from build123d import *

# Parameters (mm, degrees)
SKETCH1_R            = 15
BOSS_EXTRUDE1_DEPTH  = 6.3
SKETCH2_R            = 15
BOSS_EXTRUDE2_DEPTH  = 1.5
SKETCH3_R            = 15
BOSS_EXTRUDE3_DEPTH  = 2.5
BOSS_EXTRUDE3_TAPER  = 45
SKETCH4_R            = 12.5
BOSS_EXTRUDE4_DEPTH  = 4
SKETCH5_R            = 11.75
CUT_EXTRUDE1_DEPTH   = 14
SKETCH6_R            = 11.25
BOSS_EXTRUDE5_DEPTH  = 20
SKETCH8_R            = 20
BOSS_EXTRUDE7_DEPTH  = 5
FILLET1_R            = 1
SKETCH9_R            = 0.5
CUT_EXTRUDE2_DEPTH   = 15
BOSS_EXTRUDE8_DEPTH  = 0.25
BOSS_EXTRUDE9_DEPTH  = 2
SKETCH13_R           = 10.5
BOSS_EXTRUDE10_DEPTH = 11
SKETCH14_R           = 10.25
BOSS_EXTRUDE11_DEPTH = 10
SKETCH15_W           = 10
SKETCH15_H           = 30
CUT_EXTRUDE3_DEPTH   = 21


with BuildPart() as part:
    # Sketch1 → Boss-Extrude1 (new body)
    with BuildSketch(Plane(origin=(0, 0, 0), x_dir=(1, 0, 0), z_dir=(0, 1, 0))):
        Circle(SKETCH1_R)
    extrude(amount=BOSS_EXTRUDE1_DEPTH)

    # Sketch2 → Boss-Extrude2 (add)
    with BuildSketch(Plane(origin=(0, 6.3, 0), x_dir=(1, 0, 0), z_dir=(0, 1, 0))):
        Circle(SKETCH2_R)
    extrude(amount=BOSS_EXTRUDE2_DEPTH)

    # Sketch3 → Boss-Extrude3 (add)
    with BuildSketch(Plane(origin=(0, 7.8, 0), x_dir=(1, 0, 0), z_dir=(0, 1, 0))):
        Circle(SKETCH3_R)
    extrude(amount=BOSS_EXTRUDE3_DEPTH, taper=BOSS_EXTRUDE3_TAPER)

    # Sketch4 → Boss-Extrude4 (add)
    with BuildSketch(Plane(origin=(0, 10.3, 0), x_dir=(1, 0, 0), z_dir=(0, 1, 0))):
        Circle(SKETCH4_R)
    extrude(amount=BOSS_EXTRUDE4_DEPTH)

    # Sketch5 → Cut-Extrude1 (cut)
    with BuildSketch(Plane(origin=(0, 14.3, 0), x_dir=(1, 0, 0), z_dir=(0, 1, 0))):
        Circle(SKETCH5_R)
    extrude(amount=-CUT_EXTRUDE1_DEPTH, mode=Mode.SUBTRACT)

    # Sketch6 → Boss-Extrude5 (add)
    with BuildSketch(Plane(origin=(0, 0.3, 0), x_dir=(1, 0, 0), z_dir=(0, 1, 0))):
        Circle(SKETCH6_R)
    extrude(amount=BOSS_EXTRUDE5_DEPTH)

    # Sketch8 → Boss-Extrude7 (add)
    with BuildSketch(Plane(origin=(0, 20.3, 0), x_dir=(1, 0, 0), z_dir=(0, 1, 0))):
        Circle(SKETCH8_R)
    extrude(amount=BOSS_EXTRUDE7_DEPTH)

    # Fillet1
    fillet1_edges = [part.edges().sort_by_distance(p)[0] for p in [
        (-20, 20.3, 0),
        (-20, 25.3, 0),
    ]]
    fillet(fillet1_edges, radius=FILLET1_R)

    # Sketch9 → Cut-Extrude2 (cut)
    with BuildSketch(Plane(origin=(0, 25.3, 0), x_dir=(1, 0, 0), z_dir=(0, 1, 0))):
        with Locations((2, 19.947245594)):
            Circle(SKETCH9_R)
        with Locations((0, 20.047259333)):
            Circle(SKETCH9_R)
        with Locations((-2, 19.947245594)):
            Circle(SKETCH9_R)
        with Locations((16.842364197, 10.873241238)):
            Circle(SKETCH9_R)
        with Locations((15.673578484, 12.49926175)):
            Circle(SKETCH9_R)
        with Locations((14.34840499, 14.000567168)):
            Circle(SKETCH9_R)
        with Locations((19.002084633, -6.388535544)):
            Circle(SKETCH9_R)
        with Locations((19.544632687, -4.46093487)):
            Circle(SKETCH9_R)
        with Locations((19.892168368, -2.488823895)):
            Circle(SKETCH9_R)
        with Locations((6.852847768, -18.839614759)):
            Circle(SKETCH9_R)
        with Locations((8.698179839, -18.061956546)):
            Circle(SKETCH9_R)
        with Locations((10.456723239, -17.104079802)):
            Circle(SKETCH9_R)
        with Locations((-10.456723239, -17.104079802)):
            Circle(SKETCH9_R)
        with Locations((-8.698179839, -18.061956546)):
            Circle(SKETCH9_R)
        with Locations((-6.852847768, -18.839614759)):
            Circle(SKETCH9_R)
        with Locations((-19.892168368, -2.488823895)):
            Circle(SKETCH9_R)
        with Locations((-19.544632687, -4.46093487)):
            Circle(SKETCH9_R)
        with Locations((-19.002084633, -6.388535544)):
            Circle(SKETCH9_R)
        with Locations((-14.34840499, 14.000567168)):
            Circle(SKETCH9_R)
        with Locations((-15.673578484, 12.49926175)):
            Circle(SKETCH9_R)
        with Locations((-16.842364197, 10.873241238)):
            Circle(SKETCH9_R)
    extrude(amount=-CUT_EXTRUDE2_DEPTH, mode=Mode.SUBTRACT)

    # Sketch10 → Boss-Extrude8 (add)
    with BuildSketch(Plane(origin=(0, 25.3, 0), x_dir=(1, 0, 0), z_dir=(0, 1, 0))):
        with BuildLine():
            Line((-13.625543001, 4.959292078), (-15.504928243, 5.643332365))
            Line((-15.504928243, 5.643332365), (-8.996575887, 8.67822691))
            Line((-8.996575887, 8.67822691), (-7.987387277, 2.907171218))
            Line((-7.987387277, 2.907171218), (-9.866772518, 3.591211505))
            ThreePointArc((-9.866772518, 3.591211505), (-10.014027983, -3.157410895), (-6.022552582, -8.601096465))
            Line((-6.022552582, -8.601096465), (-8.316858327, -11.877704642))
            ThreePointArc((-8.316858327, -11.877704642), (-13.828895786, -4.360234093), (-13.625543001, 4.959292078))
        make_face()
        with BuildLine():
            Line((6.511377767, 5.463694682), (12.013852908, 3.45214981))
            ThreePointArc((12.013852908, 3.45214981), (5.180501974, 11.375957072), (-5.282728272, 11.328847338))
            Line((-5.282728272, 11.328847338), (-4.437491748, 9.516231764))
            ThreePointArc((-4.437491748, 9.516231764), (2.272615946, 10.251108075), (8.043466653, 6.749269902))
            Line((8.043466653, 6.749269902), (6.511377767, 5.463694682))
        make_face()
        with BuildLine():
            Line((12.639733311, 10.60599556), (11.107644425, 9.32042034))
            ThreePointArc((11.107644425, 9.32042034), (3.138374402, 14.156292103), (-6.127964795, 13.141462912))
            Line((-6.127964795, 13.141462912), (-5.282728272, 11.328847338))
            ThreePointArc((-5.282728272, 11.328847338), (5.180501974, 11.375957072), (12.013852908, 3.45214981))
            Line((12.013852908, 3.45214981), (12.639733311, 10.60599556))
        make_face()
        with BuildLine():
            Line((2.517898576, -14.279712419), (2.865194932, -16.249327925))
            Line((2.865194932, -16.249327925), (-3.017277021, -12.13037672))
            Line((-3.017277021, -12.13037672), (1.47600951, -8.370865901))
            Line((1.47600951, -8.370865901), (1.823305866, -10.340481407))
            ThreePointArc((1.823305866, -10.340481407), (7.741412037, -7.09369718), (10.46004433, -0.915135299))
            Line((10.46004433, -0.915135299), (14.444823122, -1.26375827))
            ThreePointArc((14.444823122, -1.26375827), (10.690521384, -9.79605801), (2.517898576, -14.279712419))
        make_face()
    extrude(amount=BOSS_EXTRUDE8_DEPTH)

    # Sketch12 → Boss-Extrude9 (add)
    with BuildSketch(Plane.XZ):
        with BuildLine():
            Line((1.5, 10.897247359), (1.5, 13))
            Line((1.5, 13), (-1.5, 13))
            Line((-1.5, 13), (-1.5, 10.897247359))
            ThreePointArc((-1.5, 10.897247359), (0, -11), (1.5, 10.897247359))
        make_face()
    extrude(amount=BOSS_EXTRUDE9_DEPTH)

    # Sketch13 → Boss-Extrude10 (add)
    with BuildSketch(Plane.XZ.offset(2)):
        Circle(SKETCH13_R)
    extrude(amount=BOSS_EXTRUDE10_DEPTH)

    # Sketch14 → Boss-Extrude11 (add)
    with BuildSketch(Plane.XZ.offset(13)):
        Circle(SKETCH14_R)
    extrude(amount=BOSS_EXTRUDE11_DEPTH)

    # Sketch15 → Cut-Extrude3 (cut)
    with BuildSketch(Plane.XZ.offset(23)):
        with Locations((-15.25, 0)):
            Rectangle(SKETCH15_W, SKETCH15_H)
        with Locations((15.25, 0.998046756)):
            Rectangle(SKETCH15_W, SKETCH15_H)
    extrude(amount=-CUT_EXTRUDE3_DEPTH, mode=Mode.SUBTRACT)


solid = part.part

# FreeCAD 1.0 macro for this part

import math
import FreeCAD as App
import Part
import Sketcher

V = App.Vector
Q = App.Units.Quantity


def edges_at(feature, points):
    """Names of the edges that pass closest to the given points."""
    edges = feature.Shape.Edges
    near = lambda p: min(range(len(edges)), key=lambda i: edges[i].distToShape(Part.Vertex(*p))[0])
    return sorted({f"Edge{near(p) + 1}" for p in points})


def add_polygon(sketch, points):
    """Adds a closed chain of lines whose ends are joined by coincident constraints."""
    first, n = sketch.GeometryCount, len(points)
    for a, b in zip(points, points[1:] + points[:1]):
        sketch.addGeometry(Part.LineSegment(App.Vector(*a, 0), App.Vector(*b, 0)), False)
    for i in range(n):
        sketch.addConstraint(Sketcher.Constraint("Coincident", first + i, 2, first + (i + 1) % n, 1))

doc = App.newDocument("Part")
body = doc.addObject("PartDesign::Body", "Body")

# Sketch on XZ plane
sketch1 = doc.addObject("Sketcher::SketchObject", "Sketch")
body.addObject(sketch1)
sketch1.AttachmentSupport = (doc.XZ_Plane, [""])
sketch1.MapMode = "FlatFace"
sketch1.addGeometry(Part.Circle(V(0, 0, 0), V(0, 0, 1), 15), False)
sketch1.addConstraint([
    Sketcher.Constraint("Coincident", 0, 3, -1, 1),
    Sketcher.Constraint("Diameter", 0, Q("30 mm")),
])
pad1 = doc.addObject("PartDesign::Pad", "Pad")
body.addObject(pad1)
pad1.Profile = sketch1
pad1.Length = 6.3
pad1.Reversed = True

# Sketch on XZ plane
sketch2 = doc.addObject("Sketcher::SketchObject", "Sketch001")
body.addObject(sketch2)
sketch2.AttachmentSupport = (doc.XZ_Plane, [""])
sketch2.MapMode = "FlatFace"
sketch2.AttachmentOffset = App.Placement(V(0, 0, -6.3), App.Rotation())
sketch2.addGeometry(Part.Circle(V(0, 0, 0), V(0, 0, 1), 15), False)
sketch2.addConstraint([
    Sketcher.Constraint("Coincident", 0, 3, -1, 1),
    Sketcher.Constraint("Diameter", 0, Q("30 mm")),
])
pad2 = doc.addObject("PartDesign::Pad", "Pad001")
body.addObject(pad2)
pad2.Profile = sketch2
pad2.Length = 1.5
pad2.Reversed = True

# Sketch on XZ plane
sketch3 = doc.addObject("Sketcher::SketchObject", "Sketch002")
body.addObject(sketch3)
sketch3.AttachmentSupport = (doc.XZ_Plane, [""])
sketch3.MapMode = "FlatFace"
sketch3.AttachmentOffset = App.Placement(V(0, 0, -7.8), App.Rotation())
sketch3.addGeometry(Part.Circle(V(0, 0, 0), V(0, 0, 1), 15), False)
sketch3.addConstraint([
    Sketcher.Constraint("Coincident", 0, 3, -1, 1),
    Sketcher.Constraint("Diameter", 0, Q("30 mm")),
])
pad3 = doc.addObject("PartDesign::Pad", "Pad002")
body.addObject(pad3)
pad3.Profile = sketch3
pad3.Length = 2.5
pad3.Reversed = True
pad3.TaperAngle = -45

# Sketch on XZ plane
sketch4 = doc.addObject("Sketcher::SketchObject", "Sketch003")
body.addObject(sketch4)
sketch4.AttachmentSupport = (doc.XZ_Plane, [""])
sketch4.MapMode = "FlatFace"
sketch4.AttachmentOffset = App.Placement(V(0, 0, -10.3), App.Rotation())
sketch4.addGeometry(Part.Circle(V(0, 0, 0), V(0, 0, 1), 12), False)
sketch4.addConstraint([
    Sketcher.Constraint("Coincident", 0, 3, -1, 1),
    Sketcher.Constraint("Diameter", 0, Q("25 mm")),
])
pad4 = doc.addObject("PartDesign::Pad", "Pad003")
body.addObject(pad4)
pad4.Profile = sketch4
pad4.Length = 4
pad4.Reversed = True

# Sketch on XZ plane
sketch5 = doc.addObject("Sketcher::SketchObject", "Sketch004")
body.addObject(sketch5)
sketch5.AttachmentSupport = (doc.XZ_Plane, [""])
sketch5.MapMode = "FlatFace"
sketch5.AttachmentOffset = App.Placement(V(0, 0, -14.3), App.Rotation())
sketch5.addGeometry(Part.Circle(V(0, 0, 0), V(0, 0, 1), 12), False)
sketch5.addConstraint([
    Sketcher.Constraint("Coincident", 0, 3, -1, 1),
    Sketcher.Constraint("Diameter", 0, Q("23.5 mm")),
])
pocket1 = doc.addObject("PartDesign::Pocket", "Pocket")
body.addObject(pocket1)
pocket1.Profile = sketch5
pocket1.Length = 14
pocket1.Reversed = True

# Sketch on XZ plane
sketch6 = doc.addObject("Sketcher::SketchObject", "Sketch005")
body.addObject(sketch6)
sketch6.AttachmentSupport = (doc.XZ_Plane, [""])
sketch6.MapMode = "FlatFace"
sketch6.AttachmentOffset = App.Placement(V(0, 0, -0.3), App.Rotation())
sketch6.addGeometry(Part.Circle(V(0, 0, 0), V(0, 0, 1), 11), False)
sketch6.addConstraint([
    Sketcher.Constraint("Coincident", 0, 3, -1, 1),
    Sketcher.Constraint("Diameter", 0, Q("22.5 mm")),
])
pad5 = doc.addObject("PartDesign::Pad", "Pad004")
body.addObject(pad5)
pad5.Profile = sketch6
pad5.Length = 20
pad5.Reversed = True

# Sketch on XZ plane
sketch7 = doc.addObject("Sketcher::SketchObject", "Sketch006")
body.addObject(sketch7)
sketch7.AttachmentSupport = (doc.XZ_Plane, [""])
sketch7.MapMode = "FlatFace"
sketch7.AttachmentOffset = App.Placement(V(0, 0, -20.3), App.Rotation())
sketch7.addGeometry(Part.Circle(V(0, 0, 0), V(0, 0, 1), 20), False)
sketch7.addConstraint([
    Sketcher.Constraint("Coincident", 0, 3, -1, 1),
    Sketcher.Constraint("Diameter", 0, Q("40 mm")),
])
pad6 = doc.addObject("PartDesign::Pad", "Pad005")
body.addObject(pad6)
pad6.Profile = sketch7
pad6.Length = 5
pad6.Reversed = True
doc.recompute()

fillet = doc.addObject("PartDesign::Fillet", "Fillet")
body.addObject(fillet)
fillet.Base = (pad6, edges_at(pad6, [(-20, 20.3, 0), (-20, 25.3, 0)]))
fillet.Radius = 1

# Sketch on XZ plane
sketch8 = doc.addObject("Sketcher::SketchObject", "Sketch007")
body.addObject(sketch8)
sketch8.AttachmentSupport = (doc.XZ_Plane, [""])
sketch8.MapMode = "FlatFace"
sketch8.AttachmentOffset = App.Placement(V(0, 0, -25.3), App.Rotation())
sketch8.addGeometry([
    Part.Circle(V(2, -19.9, 0), V(0, 0, 1), 0.5),  # 0
    Part.Circle(V(0, -20, 0), V(0, 0, 1), 0.5),  # 1
    Part.Circle(V(-2, -19.9, 0), V(0, 0, 1), 0.5),  # 2
    Part.Circle(V(16.8, -10.9, 0), V(0, 0, 1), 0.5),  # 3
    Part.Circle(V(15.7, -12.5, 0), V(0, 0, 1), 0.5),  # 4
    Part.Circle(V(14.3, -14, 0), V(0, 0, 1), 0.5),  # 5
    Part.Circle(V(19, 6.4, 0), V(0, 0, 1), 0.5),  # 6
    Part.Circle(V(19.5, 4.5, 0), V(0, 0, 1), 0.5),  # 7
    Part.Circle(V(19.9, 2.5, 0), V(0, 0, 1), 0.5),  # 8
    Part.Circle(V(6.9, 18.8, 0), V(0, 0, 1), 0.5),  # 9
    Part.Circle(V(8.7, 18.1, 0), V(0, 0, 1), 0.5),  # 10
    Part.Circle(V(10.5, 17.1, 0), V(0, 0, 1), 0.5),  # 11
    Part.Circle(V(-10.5, 17.1, 0), V(0, 0, 1), 0.5),  # 12
    Part.Circle(V(-8.7, 18.1, 0), V(0, 0, 1), 0.5),  # 13
    Part.Circle(V(-6.9, 18.8, 0), V(0, 0, 1), 0.5),  # 14
    Part.Circle(V(-19.9, 2.5, 0), V(0, 0, 1), 0.5),  # 15
    Part.Circle(V(-19.5, 4.5, 0), V(0, 0, 1), 0.5),  # 16
    Part.Circle(V(-19, 6.4, 0), V(0, 0, 1), 0.5),  # 17
    Part.Circle(V(-14.3, -14, 0), V(0, 0, 1), 0.5),  # 18
    Part.Circle(V(-15.7, -12.5, 0), V(0, 0, 1), 0.5),  # 19
    Part.Circle(V(-16.8, -10.9, 0), V(0, 0, 1), 0.5),  # 20
], False)
sketch8.addConstraint([
    Sketcher.Constraint("Equal", 0, 1),
    Sketcher.Constraint("Equal", 1, 2),
    Sketcher.Constraint("Equal", 2, 3),
    Sketcher.Constraint("Equal", 3, 4),
    Sketcher.Constraint("Equal", 4, 5),
    Sketcher.Constraint("Equal", 5, 6),
    Sketcher.Constraint("Equal", 6, 7),
    Sketcher.Constraint("Equal", 7, 8),
    Sketcher.Constraint("Equal", 8, 9),
    Sketcher.Constraint("Equal", 9, 10),
    Sketcher.Constraint("Equal", 10, 11),
    Sketcher.Constraint("Equal", 11, 12),
    Sketcher.Constraint("Equal", 12, 13),
    Sketcher.Constraint("Equal", 13, 14),
    Sketcher.Constraint("Equal", 14, 15),
    Sketcher.Constraint("Equal", 15, 16),
    Sketcher.Constraint("Equal", 16, 17),
    Sketcher.Constraint("Equal", 17, 18),
    Sketcher.Constraint("Equal", 18, 19),
    Sketcher.Constraint("Equal", 19, 20),
    Sketcher.Constraint("Symmetric", 0, 3, 2, 3, -2),
    Sketcher.Constraint("Symmetric", 11, 3, 12, 3, -2),
    Sketcher.Constraint("Symmetric", 10, 3, 13, 3, -2),
    Sketcher.Constraint("Symmetric", 9, 3, 14, 3, -2),
    Sketcher.Constraint("Symmetric", 8, 3, 15, 3, -2),
    Sketcher.Constraint("Symmetric", 7, 3, 16, 3, -2),
    Sketcher.Constraint("Symmetric", 6, 3, 17, 3, -2),
    Sketcher.Constraint("Symmetric", 5, 3, 18, 3, -2),
    Sketcher.Constraint("Symmetric", 4, 3, 19, 3, -2),
    Sketcher.Constraint("Symmetric", 3, 3, 20, 3, -2),
    Sketcher.Constraint("PointOnObject", 1, 3, -2),
    Sketcher.Constraint("Diameter", 0, Q("1 mm")),
    Sketcher.Constraint("DistanceX", -1, 1, 0, 3, Q("2 mm")),
    Sketcher.Constraint("DistanceY", 7, 3, 6, 3, Q("1.927601 mm")),
    Sketcher.Constraint("DistanceY", 1, 3, -1, 1, Q("20.047259 mm")),
    Sketcher.Constraint("DistanceY", 3, 3, -1, 1, Q("10.873241 mm")),
    Sketcher.Constraint("DistanceX", -1, 1, 4, 3, Q("15.673578 mm")),
    Sketcher.Constraint("DistanceY", 4, 3, -1, 1, Q("12.499262 mm")),
    Sketcher.Constraint("DistanceX", -1, 1, 8, 3, Q("19.892168 mm")),
    Sketcher.Constraint("DistanceX", -1, 1, 10, 3, Q("8.69818 mm")),
    Sketcher.Constraint("DistanceY", -1, 1, 11, 3, Q("17.10408 mm")),
    Sketcher.Constraint("DistanceX", 5, 3, 3, 3, Q("2.493959 mm")),
    Sketcher.Constraint("DistanceY", 0, 3, 5, 3, Q("5.946678 mm")),
    Sketcher.Constraint("DistanceX", 3, 3, 6, 3, Q("2.15972 mm")),
    Sketcher.Constraint("DistanceY", 0, 3, 6, 3, Q("26.335781 mm")),
    Sketcher.Constraint("DistanceX", 6, 3, 7, 3, Q("0.542548 mm")),
    Sketcher.Constraint("DistanceY", 8, 3, 7, 3, Q("1.972111 mm")),
    Sketcher.Constraint("DistanceY", 6, 3, 9, 3, Q("12.451079 mm")),
    Sketcher.Constraint("DistanceX", 9, 3, 8, 3, Q("13.039321 mm")),
    Sketcher.Constraint("DistanceY", 10, 3, 9, 3, Q("0.777658 mm")),
    Sketcher.Constraint("DistanceX", 11, 3, 6, 3, Q("8.545361 mm")),
    Sketcher.Constraint("DistanceX", 12, 3, 9, 3, Q("17.309571 mm")),
    Sketcher.Constraint("DistanceY", 0, 3, -1, 1, Q("19.947246 mm")),
])
pocket2 = doc.addObject("PartDesign::Pocket", "Pocket001")
body.addObject(pocket2)
pocket2.Profile = sketch8
pocket2.Length = 15
pocket2.Reversed = True

# Sketch on XZ plane
sketch9 = doc.addObject("Sketcher::SketchObject", "Sketch008")
body.addObject(sketch9)
sketch9.AttachmentSupport = (doc.XZ_Plane, [""])
sketch9.MapMode = "FlatFace"
sketch9.AttachmentOffset = App.Placement(V(0, 0, -25.3), App.Rotation())
sketch9.addGeometry([
    Part.LineSegment(V(-15.5, -5.6, 0), V(-13.6, -5, 0)),  # 0
    Part.ArcOfCircle(Part.Circle(V(0, 0, 0), V(0, 0, 1), 14.5), math.radians(125), math.radians(200)),  # 1
    Part.LineSegment(V(-8.3, 11.9, 0), V(-6, 8.6, 0)),  # 2
    Part.ArcOfCircle(Part.Circle(V(0, 0, 0), V(0, 0, 1), 10.5), math.radians(125), math.radians(200)),  # 3
    Part.LineSegment(V(-9.9, -3.6, 0), V(-8, -2.9, 0)),  # 4
    Part.LineSegment(V(-8, -2.9, 0), V(-9, -8.7, 0)),  # 5
    Part.LineSegment(V(-9, -8.7, 0), V(-15.5, -5.6, 0)),  # 6
    Part.LineSegment(V(6.5, -5.5, 0), V(12, -3.5, 0)),  # 7
    Part.LineSegment(V(12, -3.5, 0), V(12.6, -10.6, 0)),  # 8
    Part.LineSegment(V(12.6, -10.6, 0), V(11.1, -9.3, 0)),  # 9
    Part.ArcOfCircle(Part.Circle(V(0, 0, 0), V(0, 0, 1), 14.5), math.radians(-115), math.radians(-40)),  # 10
    Part.LineSegment(V(-6.1, -13.1, 0), V(-5.3, -11.3, 0)),  # 11
    Part.LineSegment(V(-5.3, -11.3, 0), V(-4.4, -9.5, 0)),  # 12
    Part.ArcOfCircle(Part.Circle(V(0, 0, 0), V(0, 0, 1), 10.5), math.radians(-115), math.radians(-40)),  # 13
    Part.LineSegment(V(8, -6.7, 0), V(6.5, -5.5, 0)),  # 14
    Part.LineSegment(V(2.9, 16.2, 0), V(2.5, 14.3, 0)),  # 15
    Part.ArcOfCircle(Part.Circle(V(0, 0, 0), V(0, 0, 1), 14.5), math.radians(5), math.radians(80)),  # 16
    Part.LineSegment(V(14.4, 1.3, 0), V(10.5, 0.9, 0)),  # 17
    Part.ArcOfCircle(Part.Circle(V(0, 0, 0), V(0, 0, 1), 10.5), math.radians(5), math.radians(80)),  # 18
    Part.LineSegment(V(1.8, 10.3, 0), V(1.5, 8.4, 0)),  # 19
    Part.LineSegment(V(1.5, 8.4, 0), V(-3, 12.1, 0)),  # 20
    Part.LineSegment(V(-3, 12.1, 0), V(2.9, 16.2, 0)),  # 21
], False)
sketch9.addConstraint([
    Sketcher.Constraint("Coincident", 0, 2, 1, 2),
    Sketcher.Constraint("Coincident", 1, 1, 2, 1),
    Sketcher.Constraint("Coincident", 2, 2, 3, 1),
    Sketcher.Constraint("Coincident", 3, 2, 4, 1),
    Sketcher.Constraint("Coincident", 4, 2, 5, 1),
    Sketcher.Constraint("Coincident", 5, 2, 6, 1),
    Sketcher.Constraint("Coincident", 6, 2, 0, 1),
    Sketcher.Constraint("Coincident", 7, 2, 8, 1),
    Sketcher.Constraint("Coincident", 8, 2, 9, 1),
    Sketcher.Constraint("Coincident", 9, 2, 10, 2),
    Sketcher.Constraint("Coincident", 10, 1, 11, 1),
    Sketcher.Constraint("Coincident", 11, 2, 12, 1),
    Sketcher.Constraint("Coincident", 12, 2, 13, 1),
    Sketcher.Constraint("Coincident", 13, 2, 14, 1),
    Sketcher.Constraint("Coincident", 14, 2, 7, 1),
    Sketcher.Constraint("Coincident", 15, 2, 16, 2),
    Sketcher.Constraint("Coincident", 16, 1, 17, 1),
    Sketcher.Constraint("Coincident", 17, 2, 18, 1),
    Sketcher.Constraint("Coincident", 18, 2, 19, 1),
    Sketcher.Constraint("Coincident", 19, 2, 20, 1),
    Sketcher.Constraint("Coincident", 20, 2, 21, 1),
    Sketcher.Constraint("Coincident", 21, 2, 15, 1),
    Sketcher.Constraint("Coincident", 1, 3, -1, 1),
    Sketcher.Constraint("Coincident", 3, 3, -1, 1),
    Sketcher.Constraint("Coincident", 10, 3, -1, 1),
    Sketcher.Constraint("Coincident", 13, 3, -1, 1),
    Sketcher.Constraint("Coincident", 16, 3, -1, 1),
    Sketcher.Constraint("Coincident", 18, 3, -1, 1),
    Sketcher.Constraint("Equal", 1, 10),
    Sketcher.Constraint("Equal", 3, 13),
    Sketcher.Constraint("Equal", 10, 16),
    Sketcher.Constraint("Equal", 13, 18),
    Sketcher.Constraint("Parallel", 0, 4),
    Sketcher.Constraint("Perpendicular", 6, 11),
    Sketcher.Constraint("Parallel", 11, 12),
    Sketcher.Constraint("Parallel", 9, 14),
    Sketcher.Constraint("Perpendicular", 8, 17),
    Sketcher.Constraint("Parallel", 15, 19),
    Sketcher.Constraint("Perpendicular", 2, 21),
    Sketcher.Constraint("Equal", 0, 4),
    Sketcher.Constraint("Equal", 5, 7),
    Sketcher.Constraint("Equal", 6, 8),
    Sketcher.Constraint("Equal", 4, 9),
    Sketcher.Constraint("Equal", 9, 11),
    Sketcher.Constraint("Equal", 11, 12),
    Sketcher.Constraint("Equal", 12, 14),
    Sketcher.Constraint("Equal", 14, 15),
    Sketcher.Constraint("Equal", 15, 19),
    Sketcher.Constraint("Equal", 7, 20),
    Sketcher.Constraint("Equal", 8, 21),
    Sketcher.Constraint("Radius", 1, Q("14.5 mm")),
    Sketcher.Constraint("Radius", 3, Q("10.5 mm")),
    Sketcher.Constraint("Angle", 0, Q("20 deg")),
    Sketcher.Constraint("Angle", 2, Q("-55 deg")),
    Sketcher.Constraint("Angle", 6, Q("155 deg")),
    Sketcher.Constraint("Angle", 8, Q("-85 deg")),
    Sketcher.Constraint("Angle", 9, Q("140 deg")),
    Sketcher.Constraint("Angle", 15, Q("-100 deg")),
    Sketcher.Constraint("DistanceX", -1, 1, 15, 2, Q("2.517899 mm")),
    Sketcher.Constraint("DistanceY", 8, 2, 14, 2, Q("5.142301 mm")),
    Sketcher.Constraint("DistanceX", 17, 2, 9, 2, Q("0.6476 mm")),
    Sketcher.Constraint("Distance", 5, Q("5.85863 mm")),
    Sketcher.Constraint("DistanceX", 1, 1, -1, 1, Q("8.316858 mm")),
    Sketcher.Constraint("DistanceY", 3, 2, -1, 1, Q("3.591212 mm")),
    Sketcher.Constraint("DistanceY", 7, 2, -1, 1, Q("3.45215 mm")),
    Sketcher.Constraint("DistanceX", 11, 2, -1, 1, Q("5.282728 mm")),
])
pad7 = doc.addObject("PartDesign::Pad", "Pad006")
body.addObject(pad7)
pad7.Profile = sketch9
pad7.Length = 0.25
pad7.Reversed = True

# Sketch on XZ plane
sketch10 = doc.addObject("Sketcher::SketchObject", "Sketch009")
body.addObject(sketch10)
sketch10.AttachmentSupport = (doc.XZ_Plane, [""])
sketch10.MapMode = "FlatFace"
sketch10.addGeometry([
    Part.LineSegment(V(1.5, 10.9, 0), V(1.5, 13, 0)),
    Part.LineSegment(V(1.5, 13, 0), V(-1.5, 13, 0)),
    Part.LineSegment(V(-1.5, 13, 0), V(-1.5, 10.9, 0)),
    Part.ArcOfCircle(Part.Circle(V(0, 0, 0), V(0, 0, 1), 11), math.radians(98), math.radians(442)),
], False)
sketch10.addConstraint([
    Sketcher.Constraint("Coincident", 0, 2, 1, 1),
    Sketcher.Constraint("Coincident", 1, 2, 2, 1),
    Sketcher.Constraint("Coincident", 2, 2, 3, 1),
    Sketcher.Constraint("Coincident", 3, 2, 0, 1),
    Sketcher.Constraint("Vertical", 0),
    Sketcher.Constraint("Horizontal", 1),
    Sketcher.Constraint("Vertical", 2),
    Sketcher.Constraint("Coincident", 3, 3, -1, 1),
    Sketcher.Constraint("Horizontal", 2, 2, 3, 2),
    Sketcher.Constraint("Radius", 3, Q("11 mm")),
    Sketcher.Constraint("DistanceX", 1, 2, 1, 1, Q("3 mm")),
    Sketcher.Constraint("DistanceY", -1, 1, 0, 2, Q("13 mm")),
])
pad8 = doc.addObject("PartDesign::Pad", "Pad007")
body.addObject(pad8)
pad8.Profile = sketch10
pad8.Length = 2

# Sketch on XZ plane
sketch11 = doc.addObject("Sketcher::SketchObject", "Sketch010")
body.addObject(sketch11)
sketch11.AttachmentSupport = (doc.XZ_Plane, [""])
sketch11.MapMode = "FlatFace"
sketch11.AttachmentOffset = App.Placement(V(0, 0, 2), App.Rotation())
sketch11.addGeometry(Part.Circle(V(0, 0, 0), V(0, 0, 1), 10), False)
sketch11.addConstraint([
    Sketcher.Constraint("Coincident", 0, 3, -1, 1),
    Sketcher.Constraint("Diameter", 0, Q("21 mm")),
])
pad9 = doc.addObject("PartDesign::Pad", "Pad008")
body.addObject(pad9)
pad9.Profile = sketch11
pad9.Length = 11

# Sketch on XZ plane
sketch12 = doc.addObject("Sketcher::SketchObject", "Sketch011")
body.addObject(sketch12)
sketch12.AttachmentSupport = (doc.XZ_Plane, [""])
sketch12.MapMode = "FlatFace"
sketch12.AttachmentOffset = App.Placement(V(0, 0, 13), App.Rotation())
sketch12.addGeometry(Part.Circle(V(0, 0, 0), V(0, 0, 1), 10), False)
sketch12.addConstraint([
    Sketcher.Constraint("Coincident", 0, 3, -1, 1),
    Sketcher.Constraint("Diameter", 0, Q("20.5 mm")),
])
pad10 = doc.addObject("PartDesign::Pad", "Pad009")
body.addObject(pad10)
pad10.Profile = sketch12
pad10.Length = 10

# Sketch on XZ plane
sketch13 = doc.addObject("Sketcher::SketchObject", "Sketch012")
body.addObject(sketch13)
sketch13.AttachmentSupport = (doc.XZ_Plane, [""])
sketch13.MapMode = "FlatFace"
sketch13.AttachmentOffset = App.Placement(V(0, 0, 23), App.Rotation())
add_polygon(sketch13, [(-20, 15), (-20, -15), (-10, -15), (-10, 15)])  # lines 0-3
add_polygon(sketch13, [(10, 16), (10, -14), (20, -14), (20, 16)])  # lines 4-7
sketch13.addConstraint([
    Sketcher.Constraint("Vertical", 0),
    Sketcher.Constraint("Horizontal", 1),
    Sketcher.Constraint("Vertical", 2),
    Sketcher.Constraint("Horizontal", 3),
    Sketcher.Constraint("Vertical", 4),
    Sketcher.Constraint("Horizontal", 5),
    Sketcher.Constraint("Vertical", 6),
    Sketcher.Constraint("Horizontal", 7),
    Sketcher.Constraint("Equal", 3, 5),
    Sketcher.Constraint("Equal", 2, 4),
    Sketcher.Constraint("DistanceX", 1, 1, 1, 2, Q("10 mm")),
    Sketcher.Constraint("DistanceY", 0, 2, 0, 1, Q("30 mm")),
    Sketcher.Constraint("DistanceY", 0, 2, -1, 1, Q("15 mm")),
    Sketcher.Constraint("DistanceX", 1, 2, 4, 2, Q("20.5 mm")),
    Sketcher.Constraint("DistanceX", 0, 2, -1, 1, Q("20.25 mm")),
    Sketcher.Constraint("DistanceY", 4, 2, -1, 1, Q("14.001953 mm")),
])
pocket3 = doc.addObject("PartDesign::Pocket", "Pocket002")
body.addObject(pocket3)
pocket3.Profile = sketch13
pocket3.Length = 21

doc.recompute()
